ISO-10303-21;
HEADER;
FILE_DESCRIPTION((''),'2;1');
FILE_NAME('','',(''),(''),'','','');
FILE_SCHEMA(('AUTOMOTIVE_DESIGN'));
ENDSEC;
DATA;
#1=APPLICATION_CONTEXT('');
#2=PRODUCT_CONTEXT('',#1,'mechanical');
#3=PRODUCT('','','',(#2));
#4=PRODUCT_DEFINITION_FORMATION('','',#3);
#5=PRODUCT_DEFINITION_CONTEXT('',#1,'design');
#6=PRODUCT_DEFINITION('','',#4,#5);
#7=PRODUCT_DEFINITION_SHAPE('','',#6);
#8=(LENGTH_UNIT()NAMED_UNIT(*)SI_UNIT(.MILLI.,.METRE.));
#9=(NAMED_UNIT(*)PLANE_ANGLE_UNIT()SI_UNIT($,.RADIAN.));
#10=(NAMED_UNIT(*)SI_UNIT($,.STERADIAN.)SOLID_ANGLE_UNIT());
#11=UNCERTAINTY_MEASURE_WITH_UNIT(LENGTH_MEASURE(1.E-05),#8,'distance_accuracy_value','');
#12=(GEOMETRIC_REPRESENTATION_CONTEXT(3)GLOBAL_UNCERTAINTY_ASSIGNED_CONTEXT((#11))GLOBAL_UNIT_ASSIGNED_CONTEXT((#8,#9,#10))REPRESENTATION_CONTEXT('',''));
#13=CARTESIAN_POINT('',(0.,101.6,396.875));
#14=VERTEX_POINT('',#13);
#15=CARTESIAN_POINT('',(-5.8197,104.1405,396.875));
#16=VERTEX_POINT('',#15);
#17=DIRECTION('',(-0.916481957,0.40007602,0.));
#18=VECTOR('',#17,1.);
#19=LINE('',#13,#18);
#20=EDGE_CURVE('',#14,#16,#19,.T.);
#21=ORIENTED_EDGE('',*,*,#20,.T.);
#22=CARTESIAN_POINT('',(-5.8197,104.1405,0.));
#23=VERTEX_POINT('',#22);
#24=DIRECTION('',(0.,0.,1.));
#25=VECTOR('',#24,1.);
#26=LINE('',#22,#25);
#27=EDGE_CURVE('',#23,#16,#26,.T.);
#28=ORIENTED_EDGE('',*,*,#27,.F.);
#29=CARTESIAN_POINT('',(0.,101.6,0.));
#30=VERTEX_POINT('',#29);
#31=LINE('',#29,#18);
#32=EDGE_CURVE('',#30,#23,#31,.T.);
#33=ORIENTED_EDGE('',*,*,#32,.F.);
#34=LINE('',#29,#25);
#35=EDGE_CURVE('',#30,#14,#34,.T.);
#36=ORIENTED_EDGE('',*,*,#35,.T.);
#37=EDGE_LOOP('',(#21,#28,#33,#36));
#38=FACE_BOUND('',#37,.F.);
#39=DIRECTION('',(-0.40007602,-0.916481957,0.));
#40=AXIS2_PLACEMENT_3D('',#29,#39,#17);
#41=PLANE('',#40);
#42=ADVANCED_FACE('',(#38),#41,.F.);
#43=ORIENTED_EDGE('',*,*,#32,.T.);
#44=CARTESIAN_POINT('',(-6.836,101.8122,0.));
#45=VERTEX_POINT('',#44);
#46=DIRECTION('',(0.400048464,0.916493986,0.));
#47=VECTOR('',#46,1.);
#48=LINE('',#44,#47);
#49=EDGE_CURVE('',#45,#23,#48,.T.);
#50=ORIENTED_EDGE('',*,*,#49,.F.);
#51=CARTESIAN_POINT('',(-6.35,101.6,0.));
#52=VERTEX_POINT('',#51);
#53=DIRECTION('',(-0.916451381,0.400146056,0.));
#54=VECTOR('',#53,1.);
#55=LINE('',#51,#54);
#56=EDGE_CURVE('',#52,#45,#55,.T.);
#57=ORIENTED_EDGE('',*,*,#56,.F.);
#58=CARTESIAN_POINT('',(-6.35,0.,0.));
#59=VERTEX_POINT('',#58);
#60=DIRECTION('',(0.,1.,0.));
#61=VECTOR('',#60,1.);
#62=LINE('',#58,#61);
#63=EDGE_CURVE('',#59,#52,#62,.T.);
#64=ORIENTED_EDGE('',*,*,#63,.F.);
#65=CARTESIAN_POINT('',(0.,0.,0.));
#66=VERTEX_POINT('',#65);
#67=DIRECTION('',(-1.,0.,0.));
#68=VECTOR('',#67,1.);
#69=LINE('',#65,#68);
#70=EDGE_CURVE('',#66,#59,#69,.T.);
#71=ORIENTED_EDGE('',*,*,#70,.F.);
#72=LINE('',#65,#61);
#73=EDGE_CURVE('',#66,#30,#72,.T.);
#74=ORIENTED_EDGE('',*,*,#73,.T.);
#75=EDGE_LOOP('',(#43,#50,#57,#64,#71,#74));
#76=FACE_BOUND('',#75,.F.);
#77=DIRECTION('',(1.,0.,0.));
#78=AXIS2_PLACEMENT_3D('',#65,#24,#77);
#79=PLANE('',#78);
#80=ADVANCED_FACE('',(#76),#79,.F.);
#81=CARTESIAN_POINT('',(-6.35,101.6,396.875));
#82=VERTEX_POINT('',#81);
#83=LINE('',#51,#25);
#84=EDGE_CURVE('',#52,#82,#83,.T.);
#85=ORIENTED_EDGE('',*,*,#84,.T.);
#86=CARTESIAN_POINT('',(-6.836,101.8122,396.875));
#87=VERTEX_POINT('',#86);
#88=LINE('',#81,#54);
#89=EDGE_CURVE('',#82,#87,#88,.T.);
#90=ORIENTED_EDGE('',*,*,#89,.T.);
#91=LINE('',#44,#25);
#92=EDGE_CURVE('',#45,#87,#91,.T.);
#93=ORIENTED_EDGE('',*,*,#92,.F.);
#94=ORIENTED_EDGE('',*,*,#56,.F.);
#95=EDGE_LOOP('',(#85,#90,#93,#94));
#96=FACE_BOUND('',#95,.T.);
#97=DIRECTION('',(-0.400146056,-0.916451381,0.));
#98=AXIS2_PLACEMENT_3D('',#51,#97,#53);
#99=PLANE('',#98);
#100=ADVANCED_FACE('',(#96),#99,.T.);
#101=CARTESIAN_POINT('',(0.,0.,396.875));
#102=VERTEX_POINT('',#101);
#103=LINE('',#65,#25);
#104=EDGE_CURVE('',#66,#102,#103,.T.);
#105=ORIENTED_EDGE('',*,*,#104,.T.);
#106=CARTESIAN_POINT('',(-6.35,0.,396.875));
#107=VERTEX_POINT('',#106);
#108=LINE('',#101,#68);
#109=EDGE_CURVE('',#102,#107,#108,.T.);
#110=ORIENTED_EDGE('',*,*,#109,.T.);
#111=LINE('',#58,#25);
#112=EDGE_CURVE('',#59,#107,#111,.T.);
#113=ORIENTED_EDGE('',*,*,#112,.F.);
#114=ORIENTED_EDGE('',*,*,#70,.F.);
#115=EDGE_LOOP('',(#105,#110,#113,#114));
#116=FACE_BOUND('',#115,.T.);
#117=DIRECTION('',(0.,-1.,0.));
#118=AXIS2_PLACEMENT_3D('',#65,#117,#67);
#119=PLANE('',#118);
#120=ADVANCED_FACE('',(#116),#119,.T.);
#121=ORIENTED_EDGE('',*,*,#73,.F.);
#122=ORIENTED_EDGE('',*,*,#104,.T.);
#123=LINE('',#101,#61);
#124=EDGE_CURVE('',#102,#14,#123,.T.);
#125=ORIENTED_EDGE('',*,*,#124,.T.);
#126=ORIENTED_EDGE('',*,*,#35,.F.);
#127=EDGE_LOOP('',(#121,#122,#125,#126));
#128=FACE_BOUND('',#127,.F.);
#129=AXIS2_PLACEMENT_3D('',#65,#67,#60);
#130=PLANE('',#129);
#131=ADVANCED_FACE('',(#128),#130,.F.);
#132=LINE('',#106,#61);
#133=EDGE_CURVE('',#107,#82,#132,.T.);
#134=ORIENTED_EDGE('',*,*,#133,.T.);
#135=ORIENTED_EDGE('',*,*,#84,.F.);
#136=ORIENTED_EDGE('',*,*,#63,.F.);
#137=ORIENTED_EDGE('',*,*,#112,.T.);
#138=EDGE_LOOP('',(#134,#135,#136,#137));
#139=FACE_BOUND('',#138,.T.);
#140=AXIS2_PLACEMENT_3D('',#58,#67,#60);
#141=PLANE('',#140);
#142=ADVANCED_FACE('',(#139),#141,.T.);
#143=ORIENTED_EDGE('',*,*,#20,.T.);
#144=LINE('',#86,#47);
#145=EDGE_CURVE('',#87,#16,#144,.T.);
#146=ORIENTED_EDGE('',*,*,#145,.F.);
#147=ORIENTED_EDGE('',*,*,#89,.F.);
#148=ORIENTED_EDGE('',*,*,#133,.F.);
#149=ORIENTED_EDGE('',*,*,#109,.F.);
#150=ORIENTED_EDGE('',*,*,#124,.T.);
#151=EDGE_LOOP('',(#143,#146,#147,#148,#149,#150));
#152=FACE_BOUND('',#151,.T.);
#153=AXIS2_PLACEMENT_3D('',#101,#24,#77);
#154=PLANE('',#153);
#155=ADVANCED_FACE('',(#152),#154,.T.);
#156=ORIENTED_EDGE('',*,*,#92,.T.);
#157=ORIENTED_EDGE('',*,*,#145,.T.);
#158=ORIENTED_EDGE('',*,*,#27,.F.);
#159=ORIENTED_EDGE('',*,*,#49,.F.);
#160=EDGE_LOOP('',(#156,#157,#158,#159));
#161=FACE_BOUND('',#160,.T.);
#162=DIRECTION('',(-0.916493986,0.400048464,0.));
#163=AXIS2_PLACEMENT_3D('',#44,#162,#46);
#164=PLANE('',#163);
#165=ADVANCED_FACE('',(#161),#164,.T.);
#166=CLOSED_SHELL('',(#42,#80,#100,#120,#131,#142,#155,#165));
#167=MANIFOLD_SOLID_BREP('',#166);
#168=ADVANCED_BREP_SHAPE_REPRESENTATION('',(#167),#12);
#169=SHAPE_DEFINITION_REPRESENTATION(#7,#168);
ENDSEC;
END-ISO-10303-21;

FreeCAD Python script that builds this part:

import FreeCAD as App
import Part
import Sketcher
from FreeCAD import Vector
Q = App.Units.Quantity

doc = App.newDocument("Part")
params = doc.addObject("Spreadsheet::Sheet", "Params")
for row, (alias, value) in enumerate([
    ("sketch1_height", "4 in"),
    ("sketch1_width", "0.25 in"),
    ("sketch1_length", "0.25 in"),
    ("pad1_length", "15.625 in"),
], start=1):
    params.set(f"A{row}", alias)
    params.set(f"B{row}", "=" + value)
    params.setAlias(f"B{row}", alias)

body = doc.addObject("PartDesign::Body", "Body")

# Sketch on XY plane
sketch1 = body.newObject("Sketcher::SketchObject", "Sketch")
sketch1.AttachmentSupport = (doc.getObject("XY_Plane"), [""])
sketch1.MapMode = "FlatFace"
sketch1.addGeometry([
    Part.LineSegment(Vector(-6.35, 0, 0), Vector(0, 0, 0)),  # 0
    Part.LineSegment(Vector(0, 0, 0), Vector(0, 101.6, 0)),  # 1
    Part.LineSegment(Vector(0, 101.6, 0), Vector(-5.8197, 104.1405, 0)),  # 2
    Part.LineSegment(Vector(-5.8197, 104.1405, 0), Vector(-6.836, 101.8122, 0)),  # 3
    Part.LineSegment(Vector(-6.836, 101.8122, 0), Vector(-6.35, 101.6, 0)),  # 4
    Part.LineSegment(Vector(-6.35, 101.6, 0), Vector(-6.35, 0, 0)),  # 5
], False)
sketch1.addConstraint([
    Sketcher.Constraint("Coincident", 0, 2, 1, 1),
    Sketcher.Constraint("Coincident", 1, 2, 2, 1),
    Sketcher.Constraint("Coincident", 2, 2, 3, 1),
    Sketcher.Constraint("Coincident", 3, 2, 4, 1),
    Sketcher.Constraint("Coincident", 4, 2, 5, 1),
    Sketcher.Constraint("Coincident", 5, 2, 0, 1),
    Sketcher.Constraint("Horizontal", 0),
    Sketcher.Constraint("Vertical", 1),
    Sketcher.Constraint("Vertical", 5),
    Sketcher.Constraint("Coincident", 0, 2, -1, 1),
    Sketcher.Constraint("Perpendicular", 2, 3),
    Sketcher.Constraint("Perpendicular", 3, 4),
    Sketcher.Constraint("Horizontal", 1, 2, 4, 2),
    Sketcher.Constraint("DistanceY", 1, 1, 1, 2, Q("4 in")),
    Sketcher.Constraint("DistanceX", 0, 1, 0, 2, Q("0.25 in")),
    Sketcher.Constraint("Distance", 2, Q("0.25 in")),
    Sketcher.Constraint("DistanceX", 3, 2, 2, 2, Q("0.04 in")),
])
sketch1.setExpression("Constraints[13]", "Params.sketch1_height")
sketch1.setExpression("Constraints[14]", "Params.sketch1_width")
sketch1.setExpression("Constraints[15]", "Params.sketch1_length")
pad1 = body.newObject("PartDesign::Pad", "Pad")
pad1.Profile = sketch1
pad1.setExpression("Length", "Params.pad1_length")

doc.recompute()
